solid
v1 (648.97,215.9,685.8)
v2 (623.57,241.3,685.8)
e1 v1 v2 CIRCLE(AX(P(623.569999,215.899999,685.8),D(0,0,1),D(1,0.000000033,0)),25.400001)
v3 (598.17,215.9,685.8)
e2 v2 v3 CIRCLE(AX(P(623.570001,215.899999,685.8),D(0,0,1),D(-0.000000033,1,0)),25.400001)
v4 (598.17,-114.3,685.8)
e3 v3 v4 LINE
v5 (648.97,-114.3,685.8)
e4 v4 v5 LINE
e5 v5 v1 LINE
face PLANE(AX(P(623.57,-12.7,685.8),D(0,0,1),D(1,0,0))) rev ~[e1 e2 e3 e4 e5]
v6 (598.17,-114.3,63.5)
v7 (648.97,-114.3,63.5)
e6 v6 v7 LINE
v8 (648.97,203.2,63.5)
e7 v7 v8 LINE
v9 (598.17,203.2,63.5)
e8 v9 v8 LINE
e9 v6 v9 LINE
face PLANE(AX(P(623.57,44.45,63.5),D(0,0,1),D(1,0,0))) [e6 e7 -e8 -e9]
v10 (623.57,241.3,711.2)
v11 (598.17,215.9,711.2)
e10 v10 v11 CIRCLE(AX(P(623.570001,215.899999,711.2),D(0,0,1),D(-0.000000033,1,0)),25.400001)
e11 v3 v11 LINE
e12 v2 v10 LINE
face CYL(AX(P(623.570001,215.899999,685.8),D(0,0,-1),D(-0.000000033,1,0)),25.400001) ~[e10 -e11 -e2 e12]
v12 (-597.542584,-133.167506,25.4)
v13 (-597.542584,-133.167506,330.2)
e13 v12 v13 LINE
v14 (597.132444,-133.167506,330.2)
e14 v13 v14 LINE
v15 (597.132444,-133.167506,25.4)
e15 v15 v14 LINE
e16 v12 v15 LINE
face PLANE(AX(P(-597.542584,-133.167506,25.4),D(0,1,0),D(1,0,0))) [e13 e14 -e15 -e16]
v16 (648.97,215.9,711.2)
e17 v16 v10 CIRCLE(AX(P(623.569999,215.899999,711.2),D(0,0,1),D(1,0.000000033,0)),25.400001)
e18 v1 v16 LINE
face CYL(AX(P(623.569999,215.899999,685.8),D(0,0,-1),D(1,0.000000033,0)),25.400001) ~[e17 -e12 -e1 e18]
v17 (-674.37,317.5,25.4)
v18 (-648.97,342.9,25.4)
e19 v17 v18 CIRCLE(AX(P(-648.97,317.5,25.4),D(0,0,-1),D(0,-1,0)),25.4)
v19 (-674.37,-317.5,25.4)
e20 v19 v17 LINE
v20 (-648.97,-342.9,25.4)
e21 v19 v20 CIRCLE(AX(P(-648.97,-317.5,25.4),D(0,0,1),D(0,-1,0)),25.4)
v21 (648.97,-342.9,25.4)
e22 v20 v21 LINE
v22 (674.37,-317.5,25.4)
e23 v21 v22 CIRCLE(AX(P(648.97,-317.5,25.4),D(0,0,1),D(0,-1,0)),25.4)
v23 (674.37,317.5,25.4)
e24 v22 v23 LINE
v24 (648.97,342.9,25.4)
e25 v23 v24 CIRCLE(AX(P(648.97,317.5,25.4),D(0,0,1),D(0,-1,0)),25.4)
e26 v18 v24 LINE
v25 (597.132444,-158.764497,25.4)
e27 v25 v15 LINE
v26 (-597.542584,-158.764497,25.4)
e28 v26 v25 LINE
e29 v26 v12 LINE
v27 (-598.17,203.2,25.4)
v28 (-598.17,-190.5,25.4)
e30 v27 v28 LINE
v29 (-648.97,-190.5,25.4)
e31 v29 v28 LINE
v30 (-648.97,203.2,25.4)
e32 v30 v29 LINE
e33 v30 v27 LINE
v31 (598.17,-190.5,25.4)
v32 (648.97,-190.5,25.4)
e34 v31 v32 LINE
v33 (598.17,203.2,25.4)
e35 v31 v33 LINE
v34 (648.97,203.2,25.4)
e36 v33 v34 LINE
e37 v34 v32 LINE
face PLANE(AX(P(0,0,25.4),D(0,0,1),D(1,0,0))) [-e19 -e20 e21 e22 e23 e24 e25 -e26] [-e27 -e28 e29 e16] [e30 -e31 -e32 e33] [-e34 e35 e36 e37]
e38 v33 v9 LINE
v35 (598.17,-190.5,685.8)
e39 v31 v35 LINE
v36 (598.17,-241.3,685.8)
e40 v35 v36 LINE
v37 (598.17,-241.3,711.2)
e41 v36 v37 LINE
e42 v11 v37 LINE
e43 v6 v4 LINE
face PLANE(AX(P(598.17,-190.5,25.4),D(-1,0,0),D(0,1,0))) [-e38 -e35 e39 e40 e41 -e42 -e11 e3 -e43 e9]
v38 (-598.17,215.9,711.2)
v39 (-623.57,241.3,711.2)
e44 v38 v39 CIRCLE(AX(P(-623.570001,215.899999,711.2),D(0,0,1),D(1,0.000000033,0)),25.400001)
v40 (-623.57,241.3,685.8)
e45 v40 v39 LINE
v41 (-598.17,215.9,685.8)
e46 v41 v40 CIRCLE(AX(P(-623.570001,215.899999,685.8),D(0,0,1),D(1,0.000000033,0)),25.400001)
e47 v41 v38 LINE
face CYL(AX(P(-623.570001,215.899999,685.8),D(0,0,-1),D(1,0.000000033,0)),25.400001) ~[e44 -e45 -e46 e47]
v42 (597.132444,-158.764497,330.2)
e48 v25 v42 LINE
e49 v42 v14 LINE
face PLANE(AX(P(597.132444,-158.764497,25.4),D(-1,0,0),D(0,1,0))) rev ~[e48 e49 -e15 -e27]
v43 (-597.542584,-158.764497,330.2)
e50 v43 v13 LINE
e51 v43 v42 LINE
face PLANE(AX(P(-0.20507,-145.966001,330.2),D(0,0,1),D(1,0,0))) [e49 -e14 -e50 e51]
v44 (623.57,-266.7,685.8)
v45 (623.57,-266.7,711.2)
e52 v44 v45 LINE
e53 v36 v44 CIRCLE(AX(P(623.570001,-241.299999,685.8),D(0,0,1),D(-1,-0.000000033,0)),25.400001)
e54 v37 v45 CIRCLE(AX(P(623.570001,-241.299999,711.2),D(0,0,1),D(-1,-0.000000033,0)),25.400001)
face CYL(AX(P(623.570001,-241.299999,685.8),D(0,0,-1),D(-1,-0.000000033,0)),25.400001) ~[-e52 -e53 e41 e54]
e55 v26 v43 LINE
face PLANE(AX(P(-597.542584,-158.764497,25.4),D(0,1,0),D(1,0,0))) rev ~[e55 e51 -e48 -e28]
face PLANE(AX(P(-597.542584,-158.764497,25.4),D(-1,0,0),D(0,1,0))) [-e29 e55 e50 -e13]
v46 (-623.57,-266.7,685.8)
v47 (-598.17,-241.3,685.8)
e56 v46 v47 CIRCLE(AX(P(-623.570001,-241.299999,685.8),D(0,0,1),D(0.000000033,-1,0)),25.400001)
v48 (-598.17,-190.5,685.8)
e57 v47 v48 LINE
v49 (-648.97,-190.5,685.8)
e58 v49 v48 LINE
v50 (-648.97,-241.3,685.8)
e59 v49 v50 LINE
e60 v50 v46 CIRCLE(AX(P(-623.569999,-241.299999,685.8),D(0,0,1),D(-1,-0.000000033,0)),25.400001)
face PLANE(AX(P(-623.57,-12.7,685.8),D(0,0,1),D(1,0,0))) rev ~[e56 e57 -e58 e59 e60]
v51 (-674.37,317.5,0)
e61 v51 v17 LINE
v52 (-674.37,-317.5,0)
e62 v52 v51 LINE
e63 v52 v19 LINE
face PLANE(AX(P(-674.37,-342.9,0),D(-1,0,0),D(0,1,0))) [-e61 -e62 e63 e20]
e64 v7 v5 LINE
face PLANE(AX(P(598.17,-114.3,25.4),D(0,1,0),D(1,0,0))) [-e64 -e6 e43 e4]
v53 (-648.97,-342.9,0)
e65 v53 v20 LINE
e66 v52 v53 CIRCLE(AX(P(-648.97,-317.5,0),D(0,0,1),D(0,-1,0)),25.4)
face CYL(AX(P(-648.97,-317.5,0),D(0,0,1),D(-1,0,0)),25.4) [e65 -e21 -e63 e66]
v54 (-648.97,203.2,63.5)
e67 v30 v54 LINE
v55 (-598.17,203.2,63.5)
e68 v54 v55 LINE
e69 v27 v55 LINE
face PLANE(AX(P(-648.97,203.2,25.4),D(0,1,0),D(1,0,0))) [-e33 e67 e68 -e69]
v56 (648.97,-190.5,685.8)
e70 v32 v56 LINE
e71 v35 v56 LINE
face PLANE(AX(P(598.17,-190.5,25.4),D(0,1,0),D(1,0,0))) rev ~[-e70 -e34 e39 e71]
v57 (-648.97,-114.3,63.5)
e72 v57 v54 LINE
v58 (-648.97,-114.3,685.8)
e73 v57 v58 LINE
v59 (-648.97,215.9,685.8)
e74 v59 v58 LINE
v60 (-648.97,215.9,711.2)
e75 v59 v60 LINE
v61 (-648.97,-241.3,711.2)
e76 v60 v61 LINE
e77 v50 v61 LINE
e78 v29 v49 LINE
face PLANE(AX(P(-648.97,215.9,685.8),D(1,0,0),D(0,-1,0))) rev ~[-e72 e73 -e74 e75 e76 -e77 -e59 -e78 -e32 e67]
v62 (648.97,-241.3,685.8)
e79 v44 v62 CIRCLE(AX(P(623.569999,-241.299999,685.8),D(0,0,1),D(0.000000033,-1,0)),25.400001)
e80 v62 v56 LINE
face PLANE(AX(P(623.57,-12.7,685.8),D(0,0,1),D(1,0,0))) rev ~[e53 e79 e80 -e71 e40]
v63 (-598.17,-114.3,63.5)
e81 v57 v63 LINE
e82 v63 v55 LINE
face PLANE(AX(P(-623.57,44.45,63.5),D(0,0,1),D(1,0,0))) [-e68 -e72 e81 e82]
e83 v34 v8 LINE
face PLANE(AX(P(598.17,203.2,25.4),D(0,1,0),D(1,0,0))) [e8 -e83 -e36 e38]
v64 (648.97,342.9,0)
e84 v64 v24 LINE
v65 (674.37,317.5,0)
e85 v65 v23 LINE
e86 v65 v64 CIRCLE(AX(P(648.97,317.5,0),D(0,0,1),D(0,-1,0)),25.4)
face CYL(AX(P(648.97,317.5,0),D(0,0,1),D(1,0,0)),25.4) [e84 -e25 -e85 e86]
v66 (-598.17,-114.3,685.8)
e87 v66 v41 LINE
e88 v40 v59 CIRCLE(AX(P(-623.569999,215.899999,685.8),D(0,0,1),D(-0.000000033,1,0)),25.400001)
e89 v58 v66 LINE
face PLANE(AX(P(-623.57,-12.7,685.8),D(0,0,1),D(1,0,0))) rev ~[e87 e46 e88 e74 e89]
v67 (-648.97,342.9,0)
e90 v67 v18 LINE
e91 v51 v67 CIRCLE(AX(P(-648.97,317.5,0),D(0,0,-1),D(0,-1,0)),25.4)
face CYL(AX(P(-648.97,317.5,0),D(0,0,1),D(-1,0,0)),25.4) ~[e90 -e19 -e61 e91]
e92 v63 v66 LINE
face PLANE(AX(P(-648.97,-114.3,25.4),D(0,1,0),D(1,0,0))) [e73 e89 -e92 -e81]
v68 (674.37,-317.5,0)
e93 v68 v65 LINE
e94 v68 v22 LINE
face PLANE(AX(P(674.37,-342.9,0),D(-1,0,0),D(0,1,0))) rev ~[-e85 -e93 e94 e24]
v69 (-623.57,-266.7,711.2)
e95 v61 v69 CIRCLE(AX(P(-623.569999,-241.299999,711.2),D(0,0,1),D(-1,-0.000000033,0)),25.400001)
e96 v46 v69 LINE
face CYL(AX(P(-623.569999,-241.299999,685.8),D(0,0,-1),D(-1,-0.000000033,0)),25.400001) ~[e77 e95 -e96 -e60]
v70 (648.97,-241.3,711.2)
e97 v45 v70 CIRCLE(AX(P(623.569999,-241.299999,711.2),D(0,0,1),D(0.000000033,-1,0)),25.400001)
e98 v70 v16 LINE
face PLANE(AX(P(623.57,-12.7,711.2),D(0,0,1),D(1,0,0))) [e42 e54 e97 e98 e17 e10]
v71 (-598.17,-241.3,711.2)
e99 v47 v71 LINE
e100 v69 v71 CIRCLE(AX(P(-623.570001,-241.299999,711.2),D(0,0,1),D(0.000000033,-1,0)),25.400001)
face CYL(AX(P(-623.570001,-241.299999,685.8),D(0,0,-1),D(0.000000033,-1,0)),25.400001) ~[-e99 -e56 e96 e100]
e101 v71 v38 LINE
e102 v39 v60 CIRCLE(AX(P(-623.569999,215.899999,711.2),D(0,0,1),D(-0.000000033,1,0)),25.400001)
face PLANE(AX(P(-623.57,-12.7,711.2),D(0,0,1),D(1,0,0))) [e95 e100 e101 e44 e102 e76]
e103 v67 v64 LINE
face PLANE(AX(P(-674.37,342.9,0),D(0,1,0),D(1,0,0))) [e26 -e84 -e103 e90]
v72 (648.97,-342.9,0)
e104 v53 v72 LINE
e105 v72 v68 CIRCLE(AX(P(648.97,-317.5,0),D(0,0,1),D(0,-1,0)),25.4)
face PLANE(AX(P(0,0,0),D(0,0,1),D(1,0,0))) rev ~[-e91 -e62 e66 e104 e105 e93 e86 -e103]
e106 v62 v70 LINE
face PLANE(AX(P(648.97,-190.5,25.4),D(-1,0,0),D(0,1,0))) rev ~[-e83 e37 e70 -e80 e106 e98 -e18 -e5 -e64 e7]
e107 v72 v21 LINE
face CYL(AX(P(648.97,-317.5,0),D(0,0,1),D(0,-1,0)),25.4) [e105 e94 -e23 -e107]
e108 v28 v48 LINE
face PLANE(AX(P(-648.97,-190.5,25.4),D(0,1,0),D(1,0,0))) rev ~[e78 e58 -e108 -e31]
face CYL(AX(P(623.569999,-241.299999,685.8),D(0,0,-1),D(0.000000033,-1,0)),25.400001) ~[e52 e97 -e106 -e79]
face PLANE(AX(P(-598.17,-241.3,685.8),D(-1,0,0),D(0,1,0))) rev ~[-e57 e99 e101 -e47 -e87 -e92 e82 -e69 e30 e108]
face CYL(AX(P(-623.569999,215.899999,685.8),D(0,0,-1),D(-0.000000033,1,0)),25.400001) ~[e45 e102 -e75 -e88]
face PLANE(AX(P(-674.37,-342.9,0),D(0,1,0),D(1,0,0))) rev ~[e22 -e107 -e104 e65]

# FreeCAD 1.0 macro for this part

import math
import FreeCAD as App
import Part
import Sketcher
Q = App.Units.Quantity


def edges_at(feature, points):
    """Names of the edges that pass closest to the given points."""
    edges = feature.Shape.Edges
    near = lambda p: min(range(len(edges)), key=lambda i: edges[i].distToShape(Part.Vertex(*p))[0])
    return sorted({f"Edge{near(p) + 1}" for p in points})


def add_polygon(sketch, points):
    """Adds a closed chain of lines whose ends are joined by coincident constraints."""
    first, n = sketch.GeometryCount, len(points)
    for a, b in zip(points, points[1:] + points[:1]):
        sketch.addGeometry(Part.LineSegment(App.Vector(*a, 0), App.Vector(*b, 0)), False)
    for i in range(n):
        sketch.addConstraint(Sketcher.Constraint("Coincident", first + i, 2, first + (i + 1) % n, 1))

doc = App.newDocument("Part")
body = doc.addObject("PartDesign::Body", "Body")

# Sketch on XY plane
sketch1 = body.newObject("Sketcher::SketchObject", "Sketch")
sketch1.AttachmentSupport = (doc.getObject("XY_Plane"), [""])
sketch1.MapMode = "FlatFace"
add_polygon(sketch1, [(-674.37, 342.9), (-674.37, -342.9), (674.37, -342.9), (674.37, 342.9)])  # lines 0-3
sketch1.addConstraint(Sketcher.Constraint("Vertical", 0))
sketch1.addConstraint(Sketcher.Constraint("Horizontal", 1))
sketch1.addConstraint(Sketcher.Constraint("Vertical", 2))
sketch1.addConstraint(Sketcher.Constraint("Horizontal", 3))
sketch1.addConstraint(Sketcher.Constraint("Symmetric", 0, 2, 2, 2, -1, 1))
sketch1.addConstraint(Sketcher.Constraint("DistanceY", 0, 2, 0, 1, Q("27 in")))
sketch1.addConstraint(Sketcher.Constraint("DistanceX", 1, 1, 1, 2, Q("53.1 in")))
pad1 = body.newObject("PartDesign::Pad", "Pad")
pad1.Profile = sketch1
pad1.Length = Q("1 in")

# Sketch on XY plane
sketch2 = body.newObject("Sketcher::SketchObject", "Sketch001")
sketch2.AttachmentSupport = (doc.getObject("XY_Plane"), [""])
sketch2.MapMode = "FlatFace"
sketch2.AttachmentOffset = App.Placement(App.Vector(0, 0, 1 * 25.4), App.Rotation())
add_polygon(sketch2, [(-648.97, 203.2), (-648.97, -114.3), (-598.17, -114.3), (-598.17, 203.2)])  # lines 0-3
add_polygon(sketch2, [(598.17, 203.2), (598.17, -114.3), (648.97, -114.3), (648.97, 203.2)])  # lines 4-7
sketch2.addConstraint(Sketcher.Constraint("Vertical", 0))
sketch2.addConstraint(Sketcher.Constraint("Horizontal", 1))
sketch2.addConstraint(Sketcher.Constraint("Vertical", 2))
sketch2.addConstraint(Sketcher.Constraint("Horizontal", 3))
sketch2.addConstraint(Sketcher.Constraint("Vertical", 4))
sketch2.addConstraint(Sketcher.Constraint("Horizontal", 5))
sketch2.addConstraint(Sketcher.Constraint("Vertical", 6))
sketch2.addConstraint(Sketcher.Constraint("Horizontal", 7))
sketch2.addConstraint(Sketcher.Constraint("Symmetric", 1, 2, 4, 2, -2))
sketch2.addConstraint(Sketcher.Constraint("Symmetric", 3, 2, 6, 2, -2))
sketch2.addConstraint(Sketcher.Constraint("DistanceX", 1, 1, 1, 2, Q("2 in")))
sketch2.addConstraint(Sketcher.Constraint("DistanceY", 0, 2, 0, 1, Q("12.5 in")))
sketch2.addConstraint(Sketcher.Constraint("DistanceY", -1, 1, 2, 2, Q("8 in")))
sketch2.addConstraint(Sketcher.Constraint("DistanceX", 1, 2, 4, 2, Q("47.1 in")))
pad2 = body.newObject("PartDesign::Pad", "Pad001")
pad2.Profile = sketch2
pad2.Length = Q("1.5 in")

# Sketch on XY plane
sketch3 = body.newObject("Sketcher::SketchObject", "Sketch002")
sketch3.AttachmentSupport = (doc.getObject("XY_Plane"), [""])
sketch3.MapMode = "FlatFace"
sketch3.AttachmentOffset = App.Placement(App.Vector(0, 0, 1 * 25.4), App.Rotation())
add_polygon(sketch3, [(-648.97, -114.3), (-648.97, -190.5), (-598.17, -190.5), (-598.17, -114.3)])  # lines 0-3
add_polygon(sketch3, [(598.17, -114.3), (598.17, -190.5), (648.97, -190.5), (648.97, -114.3)])  # lines 4-7
sketch3.addConstraint(Sketcher.Constraint("Vertical", 0))
sketch3.addConstraint(Sketcher.Constraint("Horizontal", 1))
sketch3.addConstraint(Sketcher.Constraint("Vertical", 2))
sketch3.addConstraint(Sketcher.Constraint("Horizontal", 3))
sketch3.addConstraint(Sketcher.Constraint("Vertical", 4))
sketch3.addConstraint(Sketcher.Constraint("Horizontal", 5))
sketch3.addConstraint(Sketcher.Constraint("Vertical", 6))
sketch3.addConstraint(Sketcher.Constraint("Horizontal", 7))
sketch3.addConstraint(Sketcher.Constraint("Symmetric", 1, 2, 4, 2, -2))
sketch3.addConstraint(Sketcher.Constraint("Symmetric", 3, 2, 6, 2, -2))
sketch3.addConstraint(Sketcher.Constraint("DistanceX", 1, 1, 1, 2, Q("2 in")))
sketch3.addConstraint(Sketcher.Constraint("DistanceY", 0, 2, 0, 1, Q("3 in")))
sketch3.addConstraint(Sketcher.Constraint("DistanceY", 0, 2, -1, 1, Q("7.5 in")))
sketch3.addConstraint(Sketcher.Constraint("DistanceX", 1, 2, 4, 2, Q("47.1 in")))
pad3 = body.newObject("PartDesign::Pad", "Pad002")
pad3.Profile = sketch3
pad3.Length = Q("26 in")

# Sketch on XY plane
sketch4 = body.newObject("Sketcher::SketchObject", "Sketch003")
sketch4.AttachmentSupport = (doc.getObject("XY_Plane"), [""])
sketch4.MapMode = "FlatFace"
sketch4.AttachmentOffset = App.Placement(App.Vector(0, 0, 27 * 25.4), App.Rotation())
sketch4.addGeometry(Part.ArcOfCircle(Part.Circle(App.Vector(-623.569999, 215.899999, 0), App.Vector(0, 0, 1), 25.400001), math.radians(90.000002), math.radians(179.999998)), False)
sketch4.addGeometry(Part.LineSegment(App.Vector(-648.97, 215.9, 0), App.Vector(-648.97, -241.3, 0)), False)
sketch4.addGeometry(Part.ArcOfCircle(Part.Circle(App.Vector(-623.569999, -241.299999, 0), App.Vector(0, 0, 1), 25.400001), math.radians(-179.999998), math.radians(-90.000002)), False)
sketch4.addGeometry(Part.ArcOfCircle(Part.Circle(App.Vector(-623.570001, -241.299999, 0), App.Vector(0, 0, 1), 25.400001), math.radians(-89.999998), math.radians(-0.000002)), False)
sketch4.addGeometry(Part.LineSegment(App.Vector(-598.17, -241.3, 0), App.Vector(-598.17, 215.9, 0)), False)
sketch4.addGeometry(Part.ArcOfCircle(Part.Circle(App.Vector(-623.570001, 215.899999, 0), App.Vector(0, 0, 1), 25.400001), math.radians(0.000002), math.radians(89.999998)), False)
sketch4.addGeometry(Part.LineSegment(App.Vector(648.97, -241.3, 0), App.Vector(648.97, 215.9, 0)), False)
sketch4.addGeometry(Part.ArcOfCircle(Part.Circle(App.Vector(623.569999, 215.899999, 0), App.Vector(0, 0, 1), 25.400001), math.radians(0.000002), math.radians(89.999998)), False)
sketch4.addGeometry(Part.ArcOfCircle(Part.Circle(App.Vector(623.570001, 215.899999, 0), App.Vector(0, 0, 1), 25.400001), math.radians(90.000002), math.radians(179.999998)), False)
sketch4.addGeometry(Part.LineSegment(App.Vector(598.17, 215.9, 0), App.Vector(598.17, -241.3, 0)), False)
sketch4.addGeometry(Part.ArcOfCircle(Part.Circle(App.Vector(623.570001, -241.299999, 0), App.Vector(0, 0, 1), 25.400001), math.radians(-179.999998), math.radians(-90.000002)), False)
sketch4.addGeometry(Part.ArcOfCircle(Part.Circle(App.Vector(623.569999, -241.299999, 0), App.Vector(0, 0, 1), 25.400001), math.radians(-89.999998), math.radians(-0.000002)), False)
sketch4.addConstraint(Sketcher.Constraint("Tangent", 0, 2, 1, 1))
sketch4.addConstraint(Sketcher.Constraint("Tangent", 1, 2, 2, 1))
sketch4.addConstraint(Sketcher.Constraint("Tangent", 2, 2, 3, 1))
sketch4.addConstraint(Sketcher.Constraint("Tangent", 3, 2, 4, 1))
sketch4.addConstraint(Sketcher.Constraint("Tangent", 4, 2, 5, 1))
sketch4.addConstraint(Sketcher.Constraint("Tangent", 5, 2, 0, 1))
sketch4.addConstraint(Sketcher.Constraint("Tangent", 6, 2, 7, 1))
sketch4.addConstraint(Sketcher.Constraint("Tangent", 7, 2, 8, 1))
sketch4.addConstraint(Sketcher.Constraint("Tangent", 8, 2, 9, 1))
sketch4.addConstraint(Sketcher.Constraint("Tangent", 9, 2, 10, 1))
sketch4.addConstraint(Sketcher.Constraint("Tangent", 10, 2, 11, 1))
sketch4.addConstraint(Sketcher.Constraint("Tangent", 11, 2, 6, 1))
sketch4.addConstraint(Sketcher.Constraint("Vertical", 1))
sketch4.addConstraint(Sketcher.Constraint("Vertical", 4))
sketch4.addConstraint(Sketcher.Constraint("Vertical", 6))
sketch4.addConstraint(Sketcher.Constraint("Vertical", 9))
sketch4.addConstraint(Sketcher.Constraint("Equal", 0, 2))
sketch4.addConstraint(Sketcher.Constraint("Equal", 2, 3))
sketch4.addConstraint(Sketcher.Constraint("Equal", 5, 7))
sketch4.addConstraint(Sketcher.Constraint("Equal", 7, 8))
sketch4.addConstraint(Sketcher.Constraint("Equal", 8, 10))
sketch4.addConstraint(Sketcher.Constraint("Symmetric", 0, 3, 7, 3, -2))
sketch4.addConstraint(Sketcher.Constraint("Symmetric", 2, 2, 10, 2, -2))
sketch4.addConstraint(Sketcher.Constraint("Vertical", 5, 3, 2, 2))
sketch4.addConstraint(Sketcher.Constraint("Vertical", 2, 2, 5, 2))
sketch4.addConstraint(Sketcher.Constraint("Vertical", 11, 3, 7, 2))
sketch4.addConstraint(Sketcher.Constraint("Radius", 0, Q("1 in")))
sketch4.addConstraint(Sketcher.Constraint("DistanceY", 1, 2, 1, 1, Q("18 in")))
sketch4.addConstraint(Sketcher.Constraint("DistanceY", -1, 1, 0, 3, Q("8.5 in")))
sketch4.addConstraint(Sketcher.Constraint("DistanceX", 0, 3, 7, 3, Q("49.0999999 in")))
pad4 = body.newObject("PartDesign::Pad", "Pad003")
pad4.Profile = sketch4
pad4.Length = Q("1 in")

# Sketch on XY plane
sketch5 = body.newObject("Sketcher::SketchObject", "Sketch004")
sketch5.AttachmentSupport = (doc.getObject("XY_Plane"), [""])
sketch5.MapMode = "FlatFace"
sketch5.AttachmentOffset = App.Placement(App.Vector(0, 0, 1 * 25.4), App.Rotation())
add_polygon(sketch5, [(-597.542584, -133.167506), (-597.542584, -158.764497), (597.132444, -158.764497), (597.132444, -133.167506)])  # lines 0-3
sketch5.addConstraint(Sketcher.Constraint("Vertical", 0))
sketch5.addConstraint(Sketcher.Constraint("Horizontal", 1))
sketch5.addConstraint(Sketcher.Constraint("Vertical", 2))
sketch5.addConstraint(Sketcher.Constraint("Horizontal", 3))
sketch5.addConstraint(Sketcher.Constraint("DistanceX", 1, 1, 1, 2, 1194.675028))
sketch5.addConstraint(Sketcher.Constraint("DistanceY", 0, 2, 0, 1, 25.596991))
sketch5.addConstraint(Sketcher.Constraint("DistanceX", 0, 2, -1, 1, 597.542584))
sketch5.addConstraint(Sketcher.Constraint("DistanceY", 0, 2, -1, 1, 158.764497))
pad5 = body.newObject("PartDesign::Pad", "Pad004")
pad5.Profile = sketch5
pad5.Length = Q("12 in")
doc.recompute()

fillet = body.newObject("PartDesign::Fillet", "Fillet")
fillet.Base = (pad5, edges_at(pad5, [(-674.37, 342.9, 12.7)]))
fillet.Radius = Q("1 in")
doc.recompute()

fillet2 = body.newObject("PartDesign::Fillet", "Fillet001")
fillet2.Base = (fillet, edges_at(fillet, [(-674.37, -342.9, 12.7)]))
fillet2.Radius = Q("1 in")
doc.recompute()

fillet3 = body.newObject("PartDesign::Fillet", "Fillet002")
fillet3.Base = (fillet2, edges_at(fillet2, [(674.37, -342.9, 12.7)]))
fillet3.Radius = Q("1 in")
doc.recompute()

fillet4 = body.newObject("PartDesign::Fillet", "Fillet003")
fillet4.Base = (fillet3, edges_at(fillet3, [(674.37, 342.9, 12.7)]))
fillet4.Radius = Q("1 in")

doc.recompute()
